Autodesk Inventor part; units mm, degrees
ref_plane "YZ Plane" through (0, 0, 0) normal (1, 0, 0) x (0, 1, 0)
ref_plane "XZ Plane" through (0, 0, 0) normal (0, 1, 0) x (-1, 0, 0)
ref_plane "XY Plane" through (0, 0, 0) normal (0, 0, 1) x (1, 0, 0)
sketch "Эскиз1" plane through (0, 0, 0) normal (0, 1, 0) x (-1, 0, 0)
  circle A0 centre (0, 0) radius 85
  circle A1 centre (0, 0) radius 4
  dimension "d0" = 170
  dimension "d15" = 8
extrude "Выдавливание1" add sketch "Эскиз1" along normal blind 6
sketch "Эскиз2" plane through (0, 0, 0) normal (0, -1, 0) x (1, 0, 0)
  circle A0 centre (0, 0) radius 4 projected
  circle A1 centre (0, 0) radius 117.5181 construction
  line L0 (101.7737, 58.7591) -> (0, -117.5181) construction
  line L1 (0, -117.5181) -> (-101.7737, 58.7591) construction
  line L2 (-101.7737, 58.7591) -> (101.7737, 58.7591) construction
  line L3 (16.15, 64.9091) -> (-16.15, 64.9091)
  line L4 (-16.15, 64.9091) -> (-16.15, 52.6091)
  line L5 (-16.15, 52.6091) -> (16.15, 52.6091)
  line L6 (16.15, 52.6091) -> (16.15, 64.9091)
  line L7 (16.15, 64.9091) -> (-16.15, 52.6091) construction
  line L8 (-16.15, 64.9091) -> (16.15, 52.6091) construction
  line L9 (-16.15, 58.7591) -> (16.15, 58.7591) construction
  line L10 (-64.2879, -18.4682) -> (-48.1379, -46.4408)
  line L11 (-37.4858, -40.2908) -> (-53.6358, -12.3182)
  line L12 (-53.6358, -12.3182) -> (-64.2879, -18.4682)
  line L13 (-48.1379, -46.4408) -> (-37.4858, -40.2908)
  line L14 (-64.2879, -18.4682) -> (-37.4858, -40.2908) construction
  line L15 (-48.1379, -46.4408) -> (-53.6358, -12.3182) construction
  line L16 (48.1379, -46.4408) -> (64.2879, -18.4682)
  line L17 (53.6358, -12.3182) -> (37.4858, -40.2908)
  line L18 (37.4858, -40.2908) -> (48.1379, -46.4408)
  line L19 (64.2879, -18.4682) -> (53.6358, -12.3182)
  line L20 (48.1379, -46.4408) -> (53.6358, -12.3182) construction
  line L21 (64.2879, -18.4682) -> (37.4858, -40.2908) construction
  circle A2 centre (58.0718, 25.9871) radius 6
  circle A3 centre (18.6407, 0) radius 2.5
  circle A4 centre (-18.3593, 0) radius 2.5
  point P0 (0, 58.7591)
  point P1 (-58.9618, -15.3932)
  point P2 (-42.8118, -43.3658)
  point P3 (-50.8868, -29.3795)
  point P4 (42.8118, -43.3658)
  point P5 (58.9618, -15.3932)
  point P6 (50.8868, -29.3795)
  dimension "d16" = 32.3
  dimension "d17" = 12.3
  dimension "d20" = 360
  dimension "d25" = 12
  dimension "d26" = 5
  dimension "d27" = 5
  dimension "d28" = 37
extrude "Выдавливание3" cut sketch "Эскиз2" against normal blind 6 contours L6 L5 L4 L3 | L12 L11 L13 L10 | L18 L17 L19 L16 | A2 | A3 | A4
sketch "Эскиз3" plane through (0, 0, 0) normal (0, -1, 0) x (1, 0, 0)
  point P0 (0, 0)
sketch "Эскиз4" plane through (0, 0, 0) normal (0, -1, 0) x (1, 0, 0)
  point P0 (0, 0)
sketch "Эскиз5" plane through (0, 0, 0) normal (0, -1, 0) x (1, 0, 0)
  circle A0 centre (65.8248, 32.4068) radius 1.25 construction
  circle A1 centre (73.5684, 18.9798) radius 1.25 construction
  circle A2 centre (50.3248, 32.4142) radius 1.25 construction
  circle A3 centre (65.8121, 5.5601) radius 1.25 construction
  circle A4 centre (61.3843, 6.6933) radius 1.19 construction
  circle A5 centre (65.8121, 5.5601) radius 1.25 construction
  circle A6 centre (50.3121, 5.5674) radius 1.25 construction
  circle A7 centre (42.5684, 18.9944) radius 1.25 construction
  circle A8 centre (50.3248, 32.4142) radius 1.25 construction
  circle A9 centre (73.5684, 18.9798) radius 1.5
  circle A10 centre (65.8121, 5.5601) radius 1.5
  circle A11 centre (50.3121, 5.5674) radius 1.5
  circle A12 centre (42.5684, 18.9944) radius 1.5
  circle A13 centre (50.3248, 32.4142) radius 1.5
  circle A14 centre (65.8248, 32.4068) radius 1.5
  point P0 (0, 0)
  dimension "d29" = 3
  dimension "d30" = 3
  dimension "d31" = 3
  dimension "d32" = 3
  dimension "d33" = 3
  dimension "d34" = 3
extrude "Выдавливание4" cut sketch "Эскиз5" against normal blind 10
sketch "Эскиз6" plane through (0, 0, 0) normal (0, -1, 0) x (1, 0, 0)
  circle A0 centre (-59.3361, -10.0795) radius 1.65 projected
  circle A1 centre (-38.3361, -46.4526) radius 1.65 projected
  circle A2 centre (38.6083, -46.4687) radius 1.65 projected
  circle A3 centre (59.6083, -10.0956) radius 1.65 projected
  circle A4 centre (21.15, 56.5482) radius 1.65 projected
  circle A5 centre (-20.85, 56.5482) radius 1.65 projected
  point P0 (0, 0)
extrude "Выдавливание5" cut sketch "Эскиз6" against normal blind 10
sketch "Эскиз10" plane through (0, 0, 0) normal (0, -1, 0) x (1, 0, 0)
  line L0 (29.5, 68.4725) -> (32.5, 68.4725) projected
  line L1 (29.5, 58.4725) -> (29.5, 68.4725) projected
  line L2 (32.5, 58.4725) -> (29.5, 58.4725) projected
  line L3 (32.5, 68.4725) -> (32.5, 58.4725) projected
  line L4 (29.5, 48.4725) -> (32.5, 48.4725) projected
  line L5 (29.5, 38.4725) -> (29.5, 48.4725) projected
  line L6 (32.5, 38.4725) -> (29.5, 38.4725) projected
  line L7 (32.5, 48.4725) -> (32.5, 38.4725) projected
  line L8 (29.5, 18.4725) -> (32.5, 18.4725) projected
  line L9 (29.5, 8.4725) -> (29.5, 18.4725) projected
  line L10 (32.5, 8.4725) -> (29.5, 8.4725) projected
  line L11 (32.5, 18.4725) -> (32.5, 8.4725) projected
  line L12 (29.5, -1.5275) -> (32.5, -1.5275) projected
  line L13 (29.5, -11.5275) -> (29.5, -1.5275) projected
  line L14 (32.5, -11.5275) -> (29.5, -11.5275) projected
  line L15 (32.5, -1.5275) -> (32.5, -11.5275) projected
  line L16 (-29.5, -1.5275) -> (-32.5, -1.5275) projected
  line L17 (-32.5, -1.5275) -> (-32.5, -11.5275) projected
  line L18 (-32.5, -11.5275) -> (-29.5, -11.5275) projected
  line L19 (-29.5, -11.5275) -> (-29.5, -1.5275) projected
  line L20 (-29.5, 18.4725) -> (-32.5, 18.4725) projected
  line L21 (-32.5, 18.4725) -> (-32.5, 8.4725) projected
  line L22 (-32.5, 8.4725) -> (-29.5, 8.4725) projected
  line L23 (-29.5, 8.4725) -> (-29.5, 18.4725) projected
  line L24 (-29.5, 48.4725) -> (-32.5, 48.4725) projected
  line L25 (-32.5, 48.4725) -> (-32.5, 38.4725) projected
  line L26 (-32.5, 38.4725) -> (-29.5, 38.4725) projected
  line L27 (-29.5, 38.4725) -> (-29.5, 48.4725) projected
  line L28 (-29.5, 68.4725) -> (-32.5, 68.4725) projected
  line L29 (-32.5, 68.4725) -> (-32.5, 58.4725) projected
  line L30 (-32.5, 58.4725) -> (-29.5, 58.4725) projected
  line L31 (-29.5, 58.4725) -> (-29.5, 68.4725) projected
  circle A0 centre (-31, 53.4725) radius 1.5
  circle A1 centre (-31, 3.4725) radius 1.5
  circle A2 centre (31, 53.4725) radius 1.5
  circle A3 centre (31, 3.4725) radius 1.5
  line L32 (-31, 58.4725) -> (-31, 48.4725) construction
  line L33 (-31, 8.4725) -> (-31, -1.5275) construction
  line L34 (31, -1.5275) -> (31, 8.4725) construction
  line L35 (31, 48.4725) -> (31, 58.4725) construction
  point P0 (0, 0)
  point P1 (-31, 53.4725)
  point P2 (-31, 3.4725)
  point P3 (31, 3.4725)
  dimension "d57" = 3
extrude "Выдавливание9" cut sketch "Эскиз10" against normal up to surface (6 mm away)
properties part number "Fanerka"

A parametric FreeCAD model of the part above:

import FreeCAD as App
import Part
import Sketcher
Q = App.Units.Quantity


def add_polygon(sketch, points):
    """Adds a closed chain of lines whose ends are joined by coincident constraints."""
    first, n = sketch.GeometryCount, len(points)
    for a, b in zip(points, points[1:] + points[:1]):
        sketch.addGeometry(Part.LineSegment(App.Vector(*a, 0), App.Vector(*b, 0)), False)
    for i in range(n):
        sketch.addConstraint(Sketcher.Constraint("Coincident", first + i, 2, first + (i + 1) % n, 1))

doc = App.newDocument("Part")
body = doc.addObject("PartDesign::Body", "Body")

sketch1 = body.newObject("Sketcher::SketchObject", "Sketch")
sketch1.AttachmentSupport = (doc.getObject("XZ_Plane"), [""])
sketch1.MapMode = "FlatFace"
sketch1.addGeometry([
    Part.Circle(App.Vector(0, 0, 0), App.Vector(0, 0, 1), 85),
    Part.Circle(App.Vector(0, 0, 0), App.Vector(0, 0, 1), 4),
], False)
sketch1.addConstraint([
    Sketcher.Constraint("Coincident", 0, 3, -1, 1),
    Sketcher.Constraint("Coincident", 1, 3, -1, 1),
    Sketcher.Constraint("Diameter", 0, 170.0),
    Sketcher.Constraint("Diameter", 1, 8.0),
])
pad1 = body.newObject("PartDesign::Pad", "Pad")
pad1.Profile = sketch1
pad1.Length = 6
pad1.Reversed = True

sketch2 = body.newObject("Sketcher::SketchObject", "Sketch001")
sketch2.AttachmentSupport = (doc.getObject("XZ_Plane"), [""])
sketch2.MapMode = "FlatFace"
add_polygon(sketch2, [(16.15, 52.6091), (16.15, 64.9091), (-16.15, 64.9091), (-16.15, 52.6091)])
add_polygon(sketch2, [(-53.6358, -12.3182), (-64.2879, -18.4682), (-48.1379, -46.4408), (-37.4858, -40.2908)])
add_polygon(sketch2, [(37.4858, -40.2908), (48.1379, -46.4408), (64.2879, -18.4682), (53.6358, -12.3182)])
sketch2.addGeometry(Part.Circle(App.Vector(58.0718, 25.9871, 0), App.Vector(0, 0, 1), 6), False)
sketch2.addGeometry(Part.Circle(App.Vector(18.6407, 0, 0), App.Vector(0, 0, 1), 2.5), False)
sketch2.addGeometry(Part.Circle(App.Vector(-18.3593, 0, 0), App.Vector(0, 0, 1), 2.5), False)
sketch2.addConstraint([
    Sketcher.Constraint("Vertical", 0),
    Sketcher.Constraint("Horizontal", 1),
    Sketcher.Constraint("Vertical", 2),
    Sketcher.Constraint("Horizontal", 3),
    Sketcher.Constraint("Equal", 13, 14),
    Sketcher.Constraint("Symmetric", 5, 2, 8, 2, -2),
    Sketcher.Constraint("Symmetric", 4, 2, 9, 2, -2),
    Sketcher.Constraint("Symmetric", 7, 2, 10, 2, -2),
    Sketcher.Constraint("Symmetric", 6, 2, 11, 2, -2),
    Sketcher.Constraint("PointOnObject", 13, 3, -1),
    Sketcher.Constraint("PointOnObject", 14, 3, -1),
    Sketcher.Constraint("Perpendicular", 4, 5),
    Sketcher.Constraint("Perpendicular", 5, 6),
    Sketcher.Constraint("Perpendicular", 6, 7),
    Sketcher.Constraint("Diameter", 12, 12.0),
    Sketcher.Constraint("Diameter", 13, 5.0),
    Sketcher.Constraint("DistanceX", 1, 2, 1, 1, 32.3),
    Sketcher.Constraint("DistanceY", 0, 1, 0, 2, 12.3),
    Sketcher.Constraint("DistanceX", 14, 3, 13, 3, 37.0),
    Sketcher.Constraint("Distance", 4, 12.3),
    Sketcher.Constraint("Distance", 5, 32.3),
    Sketcher.Constraint("Angle", 4, Q("-150 deg")),
    Sketcher.Constraint("DistanceY", 6, 2, 2, 2, 92.9),
    Sketcher.Constraint("DistanceX", -1, 1, 0, 2, 16.15),
    Sketcher.Constraint("DistanceY", -1, 1, 12, 3, 25.987),
    Sketcher.Constraint("DistanceY", -1, 1, 0, 2, 64.909),
    Sketcher.Constraint("DistanceX", 4, 2, -1, 1, 64.288),
    Sketcher.Constraint("DistanceX", 13, 3, 12, 3, 39.431),
    Sketcher.Constraint("DistanceX", 8, 2, 12, 3, 9.934),
])
pocket1 = body.newObject("PartDesign::Pocket", "Pocket")
pocket1.Profile = sketch2
pocket1.Length = 6

sketch3 = body.newObject("Sketcher::SketchObject", "Sketch002")
sketch3.AttachmentSupport = (doc.getObject("XZ_Plane"), [""])
sketch3.MapMode = "FlatFace"
sketch3.addGeometry([
    Part.Circle(App.Vector(73.5684, 18.9798, 0), App.Vector(0, 0, 1), 1.5),
    Part.Circle(App.Vector(65.8121, 5.5601, 0), App.Vector(0, 0, 1), 1.5),
    Part.Circle(App.Vector(50.3121, 5.5674, 0), App.Vector(0, 0, 1), 1.5),
    Part.Circle(App.Vector(42.5684, 18.9944, 0), App.Vector(0, 0, 1), 1.5),
    Part.Circle(App.Vector(50.3248, 32.4142, 0), App.Vector(0, 0, 1), 1.5),
    Part.Circle(App.Vector(65.8248, 32.4068, 0), App.Vector(0, 0, 1), 1.5),
], False)
sketch3.addConstraint([
    Sketcher.Constraint("Equal", 0, 1),
    Sketcher.Constraint("Equal", 1, 2),
    Sketcher.Constraint("Equal", 2, 3),
    Sketcher.Constraint("Equal", 3, 4),
    Sketcher.Constraint("Equal", 4, 5),
    Sketcher.Constraint("Diameter", 0, 3.0),
    Sketcher.Constraint("DistanceX", 3, 3, 0, 3, 31.0),
    Sketcher.Constraint("DistanceX", 2, 3, 1, 3, 15.5),
    Sketcher.Constraint("DistanceX", 4, 3, 5, 3, 15.5),
    Sketcher.Constraint("DistanceY", -1, 1, 1, 3, 5.56),
    Sketcher.Constraint("DistanceX", -1, 1, 1, 3, 65.812),
    Sketcher.Constraint("DistanceY", 2, 3, 3, 3, 13.427),
    Sketcher.Constraint("DistanceY", 1, 3, 4, 3, 26.854),
    Sketcher.Constraint("DistanceY", 0, 3, 5, 3, 13.427),
    Sketcher.Constraint("DistanceX", -1, 1, 0, 3, 73.5684),
    Sketcher.Constraint("DistanceY", -1, 1, 0, 3, 18.9798),
    Sketcher.Constraint("DistanceY", -1, 1, 2, 3, 5.5674),
    Sketcher.Constraint("DistanceX", -1, 1, 4, 3, 50.3248),
])
pocket2 = body.newObject("PartDesign::Pocket", "Pocket001")
pocket2.Profile = sketch3
pocket2.Length = 10

sketch4 = body.newObject("Sketcher::SketchObject", "Sketch003")
sketch4.AttachmentSupport = (doc.getObject("XZ_Plane"), [""])
sketch4.MapMode = "FlatFace"
sketch4.addGeometry([
    Part.Circle(App.Vector(-59.3361, -10.0795, 0), App.Vector(0, 0, 1), 1.65),
    Part.Circle(App.Vector(-38.3361, -46.4526, 0), App.Vector(0, 0, 1), 1.65),
    Part.Circle(App.Vector(38.6083, -46.4687, 0), App.Vector(0, 0, 1), 1.65),
    Part.Circle(App.Vector(59.6083, -10.0956, 0), App.Vector(0, 0, 1), 1.65),
    Part.Circle(App.Vector(21.15, 56.5482, 0), App.Vector(0, 0, 1), 1.65),
    Part.Circle(App.Vector(-20.85, 56.5482, 0), App.Vector(0, 0, 1), 1.65),
], False)
sketch4.addConstraint([
    Sketcher.Constraint("Equal", 0, 1),
    Sketcher.Constraint("Equal", 1, 2),
    Sketcher.Constraint("Equal", 2, 3),
    Sketcher.Constraint("Equal", 3, 4),
    Sketcher.Constraint("Equal", 4, 5),
    Sketcher.Constraint("Horizontal", 4, 3, 5, 3),
    Sketcher.Constraint("Diameter", 0, 3.3),
    Sketcher.Constraint("DistanceX", 0, 3, 1, 3, 21.0),
    Sketcher.Constraint("DistanceX", 2, 3, 3, 3, 21.0),
    Sketcher.Constraint("DistanceX", 5, 3, 4, 3, 42.0),
    Sketcher.Constraint("DistanceX", -1, 1, 4, 3, 21.15),
    Sketcher.Constraint("DistanceX", 0, 3, -1, 1, 59.336),
    Sketcher.Constraint("DistanceY", 1, 3, 0, 3, 36.373),
    Sketcher.Constraint("DistanceY", 2, 3, 1, 3, 0.016),
    Sketcher.Constraint("DistanceY", 2, 3, 3, 3, 36.373),
    Sketcher.Constraint("DistanceY", 2, 3, 4, 3, 103.017),
    Sketcher.Constraint("DistanceY", 0, 3, -1, 1, 10.0795),
    Sketcher.Constraint("DistanceX", -1, 1, 2, 3, 38.6083),
])
pocket3 = body.newObject("PartDesign::Pocket", "Pocket002")
pocket3.Profile = sketch4
pocket3.Length = 10

sketch5 = body.newObject("Sketcher::SketchObject", "Sketch004")
sketch5.AttachmentSupport = (doc.getObject("XZ_Plane"), [""])
sketch5.MapMode = "FlatFace"
add_polygon(sketch5, [(32.5, 68.4725), (29.5, 68.4725), (29.5, 58.4725), (32.5, 58.4725)])
add_polygon(sketch5, [(32.5, 48.4725), (29.5, 48.4725), (29.5, 38.4725), (32.5, 38.4725)])
add_polygon(sketch5, [(32.5, 18.4725), (29.5, 18.4725), (29.5, 8.4725), (32.5, 8.4725)])
add_polygon(sketch5, [(32.5, -1.5275), (29.5, -1.5275), (29.5, -11.5275), (32.5, -11.5275)])
add_polygon(sketch5, [(-29.5, -11.5275), (-29.5, -1.5275), (-32.5, -1.5275), (-32.5, -11.5275)])
add_polygon(sketch5, [(-29.5, 8.4725), (-29.5, 18.4725), (-32.5, 18.4725), (-32.5, 8.4725)])
add_polygon(sketch5, [(-29.5, 38.4725), (-29.5, 48.4725), (-32.5, 48.4725), (-32.5, 38.4725)])
add_polygon(sketch5, [(-29.5, 58.4725), (-29.5, 68.4725), (-32.5, 68.4725), (-32.5, 58.4725)])
sketch5.addGeometry(Part.Circle(App.Vector(-31, 53.4725, 0), App.Vector(0, 0, 1), 1.5), False)
sketch5.addGeometry(Part.Circle(App.Vector(-31, 3.4725, 0), App.Vector(0, 0, 1), 1.5), False)
sketch5.addGeometry(Part.Circle(App.Vector(31, 53.4725, 0), App.Vector(0, 0, 1), 1.5), False)
sketch5.addGeometry(Part.Circle(App.Vector(31, 3.4725, 0), App.Vector(0, 0, 1), 1.5), False)
sketch5.addConstraint([
    Sketcher.Constraint("Horizontal", 0),
    Sketcher.Constraint("Vertical", 1),
    Sketcher.Constraint("Horizontal", 2),
    Sketcher.Constraint("Vertical", 3),
    Sketcher.Constraint("Horizontal", 4),
    Sketcher.Constraint("Vertical", 5),
    Sketcher.Constraint("Horizontal", 6),
    Sketcher.Constraint("Vertical", 7),
    Sketcher.Constraint("Horizontal", 8),
    Sketcher.Constraint("Vertical", 9),
    Sketcher.Constraint("Horizontal", 10),
    Sketcher.Constraint("Vertical", 11),
    Sketcher.Constraint("Horizontal", 12),
    Sketcher.Constraint("Vertical", 13),
    Sketcher.Constraint("Horizontal", 14),
    Sketcher.Constraint("Vertical", 15),
    Sketcher.Constraint("Vertical", 16),
    Sketcher.Constraint("Horizontal", 17),
    Sketcher.Constraint("Vertical", 18),
    Sketcher.Constraint("Horizontal", 19),
    Sketcher.Constraint("Vertical", 20),
    Sketcher.Constraint("Horizontal", 21),
    Sketcher.Constraint("Vertical", 22),
    Sketcher.Constraint("Horizontal", 23),
    Sketcher.Constraint("Vertical", 24),
    Sketcher.Constraint("Horizontal", 25),
    Sketcher.Constraint("Vertical", 26),
    Sketcher.Constraint("Horizontal", 27),
    Sketcher.Constraint("Vertical", 28),
    Sketcher.Constraint("Horizontal", 29),
    Sketcher.Constraint("Vertical", 30),
    Sketcher.Constraint("Horizontal", 31),
    Sketcher.Constraint("Equal", 32, 33),
    Sketcher.Constraint("Equal", 33, 34),
    Sketcher.Constraint("Equal", 34, 35),
    Sketcher.Constraint("Symmetric", 32, 3, 34, 3, -2),
    Sketcher.Constraint("Symmetric", 33, 3, 35, 3, -2),
    Sketcher.Constraint("Symmetric", 12, 2, 16, 2, -2),
    Sketcher.Constraint("Symmetric", 14, 2, 18, 2, -2),
    Sketcher.Constraint("Symmetric", 8, 2, 20, 2, -2),
    Sketcher.Constraint("Symmetric", 10, 2, 22, 2, -2),
    Sketcher.Constraint("Symmetric", 4, 2, 24, 2, -2),
    Sketcher.Constraint("Symmetric", 6, 2, 26, 2, -2),
    Sketcher.Constraint("Symmetric", 0, 2, 28, 2, -2),
    Sketcher.Constraint("Symmetric", 2, 2, 30, 2, -2),
    Sketcher.Constraint("Vertical", 32, 3, 33, 3),
    Sketcher.Constraint("Vertical", 1, 2, 4, 2),
    Sketcher.Constraint("Vertical", 3, 2, 6, 2),
    Sketcher.Constraint("Vertical", 5, 2, 8, 2),
    Sketcher.Constraint("Vertical", 7, 2, 10, 2),
    Sketcher.Constraint("Vertical", 9, 2, 12, 2),
    Sketcher.Constraint("Vertical", 11, 2, 14, 2),
    Sketcher.Constraint("Equal", 3, 5),
    Sketcher.Constraint("Equal", 7, 9),
    Sketcher.Constraint("Equal", 11, 13),
    Sketcher.Constraint("Diameter", 32, 3.0),
    Sketcher.Constraint("DistanceX", 0, 2, 0, 1, 3.0),
    Sketcher.Constraint("DistanceY", 1, 2, 1, 1, 10.0),
    Sketcher.Constraint("DistanceX", 32, 3, -1, 1, 31.0),
    Sketcher.Constraint("DistanceY", 33, 3, 32, 3, 50.0),
    Sketcher.Constraint("DistanceY", 34, 3, 0, 2, 15.0),
    Sketcher.Constraint("DistanceY", 4, 2, 34, 3, 5.0),
    Sketcher.Constraint("DistanceY", 35, 3, 8, 2, 15.0),
    Sketcher.Constraint("DistanceY", 12, 2, 35, 3, 5.0),
    Sketcher.Constraint("DistanceX", 16, 2, 12, 2, 59.0),
    Sketcher.Constraint("DistanceY", -1, 1, 32, 3, 53.4725),
])
pocket4 = body.newObject("PartDesign::Pocket", "Pocket003")
pocket4.Profile = sketch5
pocket4.Length = 6

doc.recompute()
